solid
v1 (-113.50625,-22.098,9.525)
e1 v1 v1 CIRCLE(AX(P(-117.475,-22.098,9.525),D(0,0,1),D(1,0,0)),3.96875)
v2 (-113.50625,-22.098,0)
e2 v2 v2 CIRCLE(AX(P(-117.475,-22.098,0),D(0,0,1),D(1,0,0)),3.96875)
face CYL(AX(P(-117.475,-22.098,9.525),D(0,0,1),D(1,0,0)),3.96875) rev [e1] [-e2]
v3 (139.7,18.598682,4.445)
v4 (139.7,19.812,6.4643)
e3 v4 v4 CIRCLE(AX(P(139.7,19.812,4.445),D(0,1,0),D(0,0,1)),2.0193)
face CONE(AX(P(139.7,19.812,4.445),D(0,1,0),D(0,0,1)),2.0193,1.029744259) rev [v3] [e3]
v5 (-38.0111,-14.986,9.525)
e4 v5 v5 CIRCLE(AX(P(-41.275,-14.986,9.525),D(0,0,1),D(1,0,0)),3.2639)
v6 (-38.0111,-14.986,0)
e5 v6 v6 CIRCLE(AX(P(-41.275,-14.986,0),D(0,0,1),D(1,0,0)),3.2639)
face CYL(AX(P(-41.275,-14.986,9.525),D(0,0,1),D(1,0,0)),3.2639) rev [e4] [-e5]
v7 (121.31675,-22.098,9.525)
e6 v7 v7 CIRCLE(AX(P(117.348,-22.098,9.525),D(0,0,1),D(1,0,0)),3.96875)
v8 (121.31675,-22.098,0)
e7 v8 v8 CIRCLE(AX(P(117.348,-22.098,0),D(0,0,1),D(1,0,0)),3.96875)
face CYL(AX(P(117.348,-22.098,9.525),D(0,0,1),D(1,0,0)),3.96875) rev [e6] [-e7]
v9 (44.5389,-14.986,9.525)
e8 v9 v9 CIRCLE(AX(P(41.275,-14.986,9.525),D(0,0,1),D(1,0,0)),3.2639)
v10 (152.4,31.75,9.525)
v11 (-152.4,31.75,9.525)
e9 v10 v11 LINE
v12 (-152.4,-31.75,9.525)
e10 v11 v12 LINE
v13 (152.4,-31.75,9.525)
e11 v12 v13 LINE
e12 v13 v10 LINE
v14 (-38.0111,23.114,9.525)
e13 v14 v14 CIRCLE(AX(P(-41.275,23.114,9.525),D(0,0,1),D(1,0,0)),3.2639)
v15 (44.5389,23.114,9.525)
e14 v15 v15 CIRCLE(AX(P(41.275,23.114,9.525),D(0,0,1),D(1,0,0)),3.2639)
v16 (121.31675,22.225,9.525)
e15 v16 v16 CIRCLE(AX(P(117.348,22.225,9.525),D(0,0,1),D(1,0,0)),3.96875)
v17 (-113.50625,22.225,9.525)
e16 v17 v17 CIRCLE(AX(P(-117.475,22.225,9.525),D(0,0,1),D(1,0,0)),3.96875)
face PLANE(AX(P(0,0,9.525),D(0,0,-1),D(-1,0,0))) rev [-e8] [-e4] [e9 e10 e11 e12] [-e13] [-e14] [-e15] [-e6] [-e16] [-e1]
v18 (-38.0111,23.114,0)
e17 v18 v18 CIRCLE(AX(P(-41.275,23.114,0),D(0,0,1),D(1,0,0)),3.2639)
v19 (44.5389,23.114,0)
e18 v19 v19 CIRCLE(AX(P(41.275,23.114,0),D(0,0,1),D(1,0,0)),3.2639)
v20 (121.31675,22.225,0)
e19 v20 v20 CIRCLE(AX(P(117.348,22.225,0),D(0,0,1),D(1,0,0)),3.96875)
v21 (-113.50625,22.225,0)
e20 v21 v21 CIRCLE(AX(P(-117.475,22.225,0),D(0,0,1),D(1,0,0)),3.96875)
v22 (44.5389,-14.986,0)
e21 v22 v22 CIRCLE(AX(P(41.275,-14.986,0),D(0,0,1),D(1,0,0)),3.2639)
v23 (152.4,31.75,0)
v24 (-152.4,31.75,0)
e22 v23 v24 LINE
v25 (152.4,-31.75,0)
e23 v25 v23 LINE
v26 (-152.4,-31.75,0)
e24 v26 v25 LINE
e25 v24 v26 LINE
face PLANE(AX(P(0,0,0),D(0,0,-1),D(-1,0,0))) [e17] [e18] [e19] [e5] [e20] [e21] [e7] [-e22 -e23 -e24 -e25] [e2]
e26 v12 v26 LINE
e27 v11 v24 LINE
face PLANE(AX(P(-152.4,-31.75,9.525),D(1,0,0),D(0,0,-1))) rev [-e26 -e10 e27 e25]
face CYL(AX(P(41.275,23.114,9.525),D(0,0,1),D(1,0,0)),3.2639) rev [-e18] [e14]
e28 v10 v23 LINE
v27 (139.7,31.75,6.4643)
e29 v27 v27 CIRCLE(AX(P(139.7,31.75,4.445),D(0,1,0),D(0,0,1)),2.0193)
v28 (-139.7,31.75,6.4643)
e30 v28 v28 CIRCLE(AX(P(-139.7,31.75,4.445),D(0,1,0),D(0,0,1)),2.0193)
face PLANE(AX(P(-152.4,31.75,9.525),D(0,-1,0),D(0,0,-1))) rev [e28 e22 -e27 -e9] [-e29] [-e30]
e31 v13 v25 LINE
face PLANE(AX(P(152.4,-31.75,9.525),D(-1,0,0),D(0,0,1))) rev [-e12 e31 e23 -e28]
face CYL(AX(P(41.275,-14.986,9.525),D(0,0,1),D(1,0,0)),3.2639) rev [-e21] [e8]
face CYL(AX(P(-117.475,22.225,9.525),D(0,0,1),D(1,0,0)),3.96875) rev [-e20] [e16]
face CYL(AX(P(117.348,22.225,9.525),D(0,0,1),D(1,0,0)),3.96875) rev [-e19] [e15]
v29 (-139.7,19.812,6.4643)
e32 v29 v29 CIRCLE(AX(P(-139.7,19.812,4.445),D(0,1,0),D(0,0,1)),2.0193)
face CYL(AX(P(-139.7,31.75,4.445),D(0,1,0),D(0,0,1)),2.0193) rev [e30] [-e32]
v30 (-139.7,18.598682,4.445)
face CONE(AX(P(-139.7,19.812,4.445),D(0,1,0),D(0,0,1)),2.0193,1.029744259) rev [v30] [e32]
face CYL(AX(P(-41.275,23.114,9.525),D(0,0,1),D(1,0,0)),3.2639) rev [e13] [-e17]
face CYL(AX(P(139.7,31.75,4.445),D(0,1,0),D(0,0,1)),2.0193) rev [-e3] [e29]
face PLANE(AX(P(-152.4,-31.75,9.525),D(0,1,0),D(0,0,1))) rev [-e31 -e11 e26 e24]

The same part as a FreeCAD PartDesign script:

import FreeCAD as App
import Part
import Sketcher
from FreeCAD import Vector
Q = App.Units.Quantity

doc = App.newDocument("Part")
body = doc.addObject("PartDesign::Body", "Body")

sketch1 = body.newObject("Sketcher::SketchObject", "Sketch")
sketch1.AttachmentSupport = (doc.getObject("XY_Plane"), [""])
sketch1.MapMode = "FlatFace"
sketch1.addGeometry([
    Part.LineSegment(Vector(-152.4, 31.75, 0), Vector(-152.4, -31.75, 0)),
    Part.LineSegment(Vector(-152.4, -31.75, 0), Vector(152.4, -31.75, 0)),
    Part.LineSegment(Vector(152.4, -31.75, 0), Vector(152.4, 31.75, 0)),
    Part.LineSegment(Vector(152.4, 31.75, 0), Vector(-152.4, 31.75, 0)),
], False)
sketch1.addConstraint([
    Sketcher.Constraint("Coincident", 0, 2, 1, 1),
    Sketcher.Constraint("Coincident", 1, 2, 2, 1),
    Sketcher.Constraint("Coincident", 2, 2, 3, 1),
    Sketcher.Constraint("Coincident", 3, 2, 0, 1),
    Sketcher.Constraint("Vertical", 0),
    Sketcher.Constraint("Horizontal", 1),
    Sketcher.Constraint("Vertical", 2),
    Sketcher.Constraint("Horizontal", 3),
    Sketcher.Constraint("Symmetric", 0, 2, 2, 2, -1, 1),
    Sketcher.Constraint("DistanceX", 1, 1, 1, 2, Q("12 in")),
    Sketcher.Constraint("DistanceY", 0, 2, 0, 1, Q("2.5 in")),
])
pad1 = body.newObject("PartDesign::Pad", "Pad")
pad1.Profile = sketch1
pad1.Length = Q("0.375 in")

sketch2 = body.newObject("Sketcher::SketchObject", "Sketch001")
sketch2.AttachmentSupport = (doc.getObject("XY_Plane"), [""])
sketch2.MapMode = "FlatFace"
sketch2.AttachmentOffset = App.Placement(Vector(0, 0, 0.375 * 25.4), App.Rotation())
sketch2.addGeometry([
    Part.Circle(Vector(-41.275, 23.114, 0), Vector(0, 0, 1), 3.2639),
    Part.Circle(Vector(41.275, 23.114, 0), Vector(0, 0, 1), 3.2639),
    Part.Circle(Vector(41.275, -14.986, 0), Vector(0, 0, 1), 3.2639),
    Part.Circle(Vector(-41.275, -14.986, 0), Vector(0, 0, 1), 3.2639),
], False)
sketch2.addConstraint([
    Sketcher.Constraint("Equal", 0, 1),
    Sketcher.Constraint("Equal", 1, 2),
    Sketcher.Constraint("Equal", 2, 3),
    Sketcher.Constraint("Symmetric", 0, 3, 1, 3, -2),
    Sketcher.Constraint("Symmetric", 2, 3, 3, 3, -2),
    Sketcher.Constraint("Vertical", 1, 3, 2, 3),
    Sketcher.Constraint("Diameter", 0, Q("0.257 in")),
    Sketcher.Constraint("DistanceY", 2, 3, 1, 3, Q("1.5 in")),
    Sketcher.Constraint("DistanceY", -1, 1, 0, 3, Q("0.91 in")),
    Sketcher.Constraint("DistanceX", 0, 3, 1, 3, Q("3.25 in")),
])
doc.recompute()
hole = body.newObject("PartDesign::Hole", "Hole")
hole.Profile = sketch2
hole.ThreadType = "None"
hole.Diameter = Q("0.257 in")
hole.DepthType = "ThroughAll"

sketch3 = body.newObject("Sketcher::SketchObject", "Sketch002")
sketch3.AttachmentSupport = (doc.getObject("XY_Plane"), [""])
sketch3.MapMode = "FlatFace"
sketch3.AttachmentOffset = App.Placement(Vector(0, 0, 0.375 * 25.4), App.Rotation())
sketch3.addGeometry([
    Part.Circle(Vector(-117.475, 22.225, 0), Vector(0, 0, 1), 3.96875),
    Part.Circle(Vector(-117.475, -22.098, 0), Vector(0, 0, 1), 3.96875),
    Part.Circle(Vector(117.348, -22.098, 0), Vector(0, 0, 1), 3.96875),
    Part.Circle(Vector(117.348, 22.225, 0), Vector(0, 0, 1), 3.96875),
], False)
sketch3.addConstraint([
    Sketcher.Constraint("Equal", 0, 1),
    Sketcher.Constraint("Equal", 1, 2),
    Sketcher.Constraint("Equal", 2, 3),
    Sketcher.Constraint("Horizontal", 1, 3, 2, 3),
    Sketcher.Constraint("Horizontal", 0, 3, 3, 3),
    Sketcher.Constraint("Vertical", 0, 3, 1, 3),
    Sketcher.Constraint("Vertical", 2, 3, 3, 3),
    Sketcher.Constraint("Diameter", 0, Q("0.3125 in")),
    Sketcher.Constraint("DistanceY", 1, 3, -1, 1, Q("0.87 in")),
    Sketcher.Constraint("DistanceX", -1, 1, 2, 3, Q("4.62 in")),
    Sketcher.Constraint("DistanceX", 0, 3, -1, 1, Q("4.625 in")),
    Sketcher.Constraint("DistanceY", -1, 1, 0, 3, Q("0.875 in")),
])
doc.recompute()
hole2 = body.newObject("PartDesign::Hole", "Hole001")
hole2.Profile = sketch3
hole2.ThreadType = "None"
hole2.Diameter = Q("0.3125 in")
hole2.DepthType = "ThroughAll"

sketch4 = body.newObject("Sketcher::SketchObject", "Sketch003")
sketch4.AttachmentSupport = (doc.getObject("XZ_Plane"), [""])
sketch4.MapMode = "FlatFace"
sketch4.AttachmentOffset = App.Placement(Vector(0, 0, -1.25 * 25.4), App.Rotation())
sketch4.addGeometry([
    Part.Circle(Vector(-139.7, 4.445, 0), Vector(0, 0, 1), 2.0193),
    Part.Circle(Vector(139.7, 4.445, 0), Vector(0, 0, 1), 2.0193),
], False)
sketch4.addConstraint([
    Sketcher.Constraint("Equal", 0, 1),
    Sketcher.Constraint("Symmetric", 0, 3, 1, 3, -2),
    Sketcher.Constraint("Diameter", 0, Q("0.159 in")),
    Sketcher.Constraint("DistanceX", 0, 3, 1, 3, Q("11 in")),
    Sketcher.Constraint("DistanceY", -1, 1, 0, 3, Q("0.175 in")),
])
doc.recompute()
hole3 = body.newObject("PartDesign::Hole", "Hole002")
hole3.Profile = sketch4
hole3.ThreadType = "None"
hole3.Diameter = Q("0.159 in")
hole3.DepthType = "Dimension"
hole3.Depth = Q("0.47 in")
hole3.DrillPoint = "Angled"
hole3.DrillPointAngle = 118
hole3.Reversed = True

doc.recompute()
